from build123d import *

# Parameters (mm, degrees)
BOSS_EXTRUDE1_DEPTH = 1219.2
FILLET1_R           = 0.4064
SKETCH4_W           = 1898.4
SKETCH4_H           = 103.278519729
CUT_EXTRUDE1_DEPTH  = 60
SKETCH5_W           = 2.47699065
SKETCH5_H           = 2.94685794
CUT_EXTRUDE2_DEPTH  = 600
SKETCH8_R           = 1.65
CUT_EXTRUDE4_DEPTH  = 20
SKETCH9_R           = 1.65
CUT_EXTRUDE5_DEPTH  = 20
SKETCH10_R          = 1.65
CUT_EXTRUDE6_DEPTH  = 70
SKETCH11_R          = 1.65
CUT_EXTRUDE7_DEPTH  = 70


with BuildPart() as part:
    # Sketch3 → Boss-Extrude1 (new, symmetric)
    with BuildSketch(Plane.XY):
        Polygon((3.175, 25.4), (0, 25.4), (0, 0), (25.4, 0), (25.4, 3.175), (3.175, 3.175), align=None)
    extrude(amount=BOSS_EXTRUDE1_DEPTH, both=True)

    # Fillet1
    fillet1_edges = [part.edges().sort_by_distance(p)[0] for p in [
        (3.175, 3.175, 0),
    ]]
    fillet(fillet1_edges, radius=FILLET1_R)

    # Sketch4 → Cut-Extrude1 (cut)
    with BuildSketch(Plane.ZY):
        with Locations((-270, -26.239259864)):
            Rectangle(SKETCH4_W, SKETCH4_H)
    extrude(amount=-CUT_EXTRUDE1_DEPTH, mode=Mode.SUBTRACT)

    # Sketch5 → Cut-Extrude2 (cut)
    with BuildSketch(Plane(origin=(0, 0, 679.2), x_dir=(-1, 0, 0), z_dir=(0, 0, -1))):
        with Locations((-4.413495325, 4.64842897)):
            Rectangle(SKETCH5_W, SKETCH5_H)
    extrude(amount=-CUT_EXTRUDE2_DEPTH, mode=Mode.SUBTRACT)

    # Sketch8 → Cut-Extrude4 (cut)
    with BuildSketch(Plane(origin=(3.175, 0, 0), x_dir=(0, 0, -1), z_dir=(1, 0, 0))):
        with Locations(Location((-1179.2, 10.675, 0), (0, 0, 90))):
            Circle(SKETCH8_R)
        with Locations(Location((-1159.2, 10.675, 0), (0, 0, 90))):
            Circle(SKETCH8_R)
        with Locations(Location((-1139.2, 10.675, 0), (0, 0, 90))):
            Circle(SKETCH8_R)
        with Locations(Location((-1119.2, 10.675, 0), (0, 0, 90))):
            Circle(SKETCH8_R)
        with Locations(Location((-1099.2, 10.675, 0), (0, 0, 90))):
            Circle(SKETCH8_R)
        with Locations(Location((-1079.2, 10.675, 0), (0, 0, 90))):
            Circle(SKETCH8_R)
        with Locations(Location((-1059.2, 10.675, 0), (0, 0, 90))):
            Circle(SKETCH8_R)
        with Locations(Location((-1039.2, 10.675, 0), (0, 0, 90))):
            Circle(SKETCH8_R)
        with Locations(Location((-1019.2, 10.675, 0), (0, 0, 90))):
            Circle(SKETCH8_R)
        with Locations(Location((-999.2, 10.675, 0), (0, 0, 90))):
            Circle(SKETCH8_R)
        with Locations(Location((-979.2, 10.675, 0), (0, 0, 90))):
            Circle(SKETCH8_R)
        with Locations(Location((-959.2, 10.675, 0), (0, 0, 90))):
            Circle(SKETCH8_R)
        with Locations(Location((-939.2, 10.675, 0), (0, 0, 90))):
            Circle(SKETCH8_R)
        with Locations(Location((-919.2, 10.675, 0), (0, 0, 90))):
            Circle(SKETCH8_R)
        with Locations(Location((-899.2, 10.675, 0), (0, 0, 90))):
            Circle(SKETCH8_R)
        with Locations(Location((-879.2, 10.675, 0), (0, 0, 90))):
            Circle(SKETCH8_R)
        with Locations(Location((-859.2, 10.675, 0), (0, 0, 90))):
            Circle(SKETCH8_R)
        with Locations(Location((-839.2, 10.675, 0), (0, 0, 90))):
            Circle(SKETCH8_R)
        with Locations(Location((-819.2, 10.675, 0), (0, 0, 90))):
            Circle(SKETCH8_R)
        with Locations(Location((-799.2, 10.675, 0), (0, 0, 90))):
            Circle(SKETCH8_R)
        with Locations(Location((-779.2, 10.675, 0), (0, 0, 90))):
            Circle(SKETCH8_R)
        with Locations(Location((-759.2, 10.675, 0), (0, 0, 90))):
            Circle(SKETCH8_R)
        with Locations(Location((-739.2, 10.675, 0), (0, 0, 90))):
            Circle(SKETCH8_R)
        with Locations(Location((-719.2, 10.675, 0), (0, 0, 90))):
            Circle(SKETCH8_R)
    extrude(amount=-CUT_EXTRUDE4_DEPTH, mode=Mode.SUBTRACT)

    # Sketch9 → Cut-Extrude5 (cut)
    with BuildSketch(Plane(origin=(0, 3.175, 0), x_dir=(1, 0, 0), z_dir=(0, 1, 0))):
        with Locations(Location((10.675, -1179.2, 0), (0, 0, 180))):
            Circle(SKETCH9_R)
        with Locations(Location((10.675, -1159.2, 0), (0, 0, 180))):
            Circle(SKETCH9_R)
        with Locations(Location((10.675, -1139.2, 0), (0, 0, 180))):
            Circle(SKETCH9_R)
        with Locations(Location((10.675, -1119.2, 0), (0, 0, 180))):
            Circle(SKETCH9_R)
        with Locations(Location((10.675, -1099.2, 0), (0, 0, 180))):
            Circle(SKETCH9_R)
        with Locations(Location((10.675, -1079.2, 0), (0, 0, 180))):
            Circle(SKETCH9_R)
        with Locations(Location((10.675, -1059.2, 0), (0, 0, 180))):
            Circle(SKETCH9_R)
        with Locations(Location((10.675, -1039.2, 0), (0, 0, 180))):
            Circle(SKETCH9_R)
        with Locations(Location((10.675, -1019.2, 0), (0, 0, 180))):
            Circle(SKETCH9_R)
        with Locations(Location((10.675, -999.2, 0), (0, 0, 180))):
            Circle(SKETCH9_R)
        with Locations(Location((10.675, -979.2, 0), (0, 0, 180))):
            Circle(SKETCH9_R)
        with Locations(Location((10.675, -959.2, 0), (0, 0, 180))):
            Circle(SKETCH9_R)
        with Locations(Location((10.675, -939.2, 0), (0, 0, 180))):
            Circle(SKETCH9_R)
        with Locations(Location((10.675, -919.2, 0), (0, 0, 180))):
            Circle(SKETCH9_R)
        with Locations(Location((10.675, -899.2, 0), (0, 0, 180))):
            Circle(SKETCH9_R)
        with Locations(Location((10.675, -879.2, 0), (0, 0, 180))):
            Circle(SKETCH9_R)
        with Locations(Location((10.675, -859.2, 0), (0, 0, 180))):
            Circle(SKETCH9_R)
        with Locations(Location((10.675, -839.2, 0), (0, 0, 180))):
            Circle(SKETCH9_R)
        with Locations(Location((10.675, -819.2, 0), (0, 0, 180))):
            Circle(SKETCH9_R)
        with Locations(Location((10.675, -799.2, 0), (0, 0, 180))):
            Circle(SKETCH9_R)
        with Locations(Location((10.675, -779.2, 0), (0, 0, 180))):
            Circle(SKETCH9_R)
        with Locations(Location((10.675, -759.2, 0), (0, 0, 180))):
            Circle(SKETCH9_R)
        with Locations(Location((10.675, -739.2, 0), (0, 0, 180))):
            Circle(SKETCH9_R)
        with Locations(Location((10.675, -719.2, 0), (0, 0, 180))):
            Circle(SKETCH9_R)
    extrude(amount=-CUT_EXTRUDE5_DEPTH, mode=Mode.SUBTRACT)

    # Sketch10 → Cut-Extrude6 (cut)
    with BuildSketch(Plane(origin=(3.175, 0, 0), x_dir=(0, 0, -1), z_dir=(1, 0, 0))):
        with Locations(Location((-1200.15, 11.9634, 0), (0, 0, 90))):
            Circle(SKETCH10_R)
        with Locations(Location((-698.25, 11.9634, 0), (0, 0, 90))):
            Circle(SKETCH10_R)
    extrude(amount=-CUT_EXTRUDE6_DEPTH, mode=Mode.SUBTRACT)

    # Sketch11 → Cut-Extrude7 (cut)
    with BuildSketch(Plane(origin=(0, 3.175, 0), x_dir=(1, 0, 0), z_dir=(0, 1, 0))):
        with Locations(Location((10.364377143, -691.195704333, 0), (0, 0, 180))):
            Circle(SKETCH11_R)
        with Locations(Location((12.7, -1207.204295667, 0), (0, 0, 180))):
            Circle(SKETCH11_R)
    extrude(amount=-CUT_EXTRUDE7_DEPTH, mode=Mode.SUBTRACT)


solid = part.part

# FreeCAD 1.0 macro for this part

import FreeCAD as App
import Part
import Sketcher

V = App.Vector
Q = App.Units.Quantity


def edges_at(feature, points):
    """Names of the edges that pass closest to the given points."""
    edges = feature.Shape.Edges
    near = lambda p: min(range(len(edges)), key=lambda i: edges[i].distToShape(Part.Vertex(*p))[0])
    return sorted({f"Edge{near(p) + 1}" for p in points})

doc = App.newDocument("Part")
body = doc.addObject("PartDesign::Body", "Body")

# Sketch on XY plane
sketch1 = body.newObject("Sketcher::SketchObject", "Sketch")
sketch1.AttachmentSupport = (doc.getObject("XY_Plane"), [""])
sketch1.MapMode = "FlatFace"
sketch1.addGeometry([
    Part.LineSegment(V(3.2, 25.4, 0), V(0, 25.4, 0)),  # 0
    Part.LineSegment(V(0, 25.4, 0), V(0, 0, 0)),  # 1
    Part.LineSegment(V(0, 0, 0), V(25.4, 0, 0)),  # 2
    Part.LineSegment(V(25.4, 0, 0), V(25.4, 3.2, 0)),  # 3
    Part.LineSegment(V(25.4, 3.2, 0), V(3.2, 3.2, 0)),  # 4
    Part.LineSegment(V(3.2, 3.2, 0), V(3.2, 25.4, 0)),  # 5
], False)
sketch1.addConstraint([
    Sketcher.Constraint("Coincident", 0, 2, 1, 1),
    Sketcher.Constraint("Coincident", 1, 2, 2, 1),
    Sketcher.Constraint("Coincident", 2, 2, 3, 1),
    Sketcher.Constraint("Coincident", 3, 2, 4, 1),
    Sketcher.Constraint("Coincident", 4, 2, 5, 1),
    Sketcher.Constraint("Coincident", 5, 2, 0, 1),
    Sketcher.Constraint("Horizontal", 0),
    Sketcher.Constraint("Vertical", 1),
    Sketcher.Constraint("Horizontal", 2),
    Sketcher.Constraint("Vertical", 3),
    Sketcher.Constraint("Horizontal", 4),
    Sketcher.Constraint("Vertical", 5),
    Sketcher.Constraint("Coincident", 1, 2, -1, 1),
    Sketcher.Constraint("Equal", 2, 1),
    Sketcher.Constraint("Equal", 0, 3),
    Sketcher.Constraint("DistanceX", 2, 1, 2, 2, Q("25.4 mm")),
    Sketcher.Constraint("DistanceX", 0, 2, 0, 1, Q("3.175 mm")),
])
pad1 = body.newObject("PartDesign::Pad", "Pad")
pad1.Profile = sketch1
pad1.Length = 2438.4
pad1.Midplane = True
doc.recompute()

fillet = body.newObject("PartDesign::Fillet", "Fillet")
fillet.Base = (pad1, edges_at(pad1, [(3.175, 3.175, 0)]))
fillet.Radius = 0.4064

# Sketch on YZ plane
sketch2 = body.newObject("Sketcher::SketchObject", "Sketch001")
sketch2.AttachmentSupport = (doc.getObject("YZ_Plane"), [""])
sketch2.MapMode = "FlatFace"
sketch2.addGeometry([
    Part.LineSegment(V(25, -1219, 0), V(-78, -1219, 0)),
    Part.LineSegment(V(-78, -1219, 0), V(-78, 679, 0)),
    Part.LineSegment(V(-78, 679, 0), V(25, 679, 0)),
    Part.LineSegment(V(25, 679, 0), V(25, -1219, 0)),
], False)
sketch2.addConstraint([
    Sketcher.Constraint("Coincident", 0, 2, 1, 1),
    Sketcher.Constraint("Coincident", 1, 2, 2, 1),
    Sketcher.Constraint("Coincident", 2, 2, 3, 1),
    Sketcher.Constraint("Coincident", 3, 2, 0, 1),
    Sketcher.Constraint("Horizontal", 0),
    Sketcher.Constraint("Vertical", 1),
    Sketcher.Constraint("Horizontal", 2),
    Sketcher.Constraint("Vertical", 3),
    Sketcher.Constraint("DistanceY", 1, 1, 1, 2, Q("1898.4 mm")),
    Sketcher.Constraint("DistanceY", 0, 2, -1, 1, Q("1219.2 mm")),
    Sketcher.Constraint("DistanceX", -1, 1, 2, 2, Q("25.4 mm")),
    Sketcher.Constraint("DistanceX", 0, 2, 0, 1, Q("103.27852 mm")),
])
pocket1 = body.newObject("PartDesign::Pocket", "Pocket")
pocket1.Profile = sketch2
pocket1.Length = 60
pocket1.Reversed = True

# Sketch on XY plane
sketch3 = body.newObject("Sketcher::SketchObject", "Sketch002")
sketch3.AttachmentSupport = (doc.getObject("XY_Plane"), [""])
sketch3.MapMode = "FlatFace"
sketch3.AttachmentOffset = App.Placement(V(0, 0, 679.2), App.Rotation())
sketch3.addGeometry([
    Part.LineSegment(V(5.7, 6.1, 0), V(5.7, 3.2, 0)),
    Part.LineSegment(V(5.7, 3.2, 0), V(3.2, 3.2, 0)),
    Part.LineSegment(V(3.2, 3.2, 0), V(3.2, 6.1, 0)),
    Part.LineSegment(V(3.2, 6.1, 0), V(5.7, 6.1, 0)),
], False)
sketch3.addConstraint([
    Sketcher.Constraint("Coincident", 0, 2, 1, 1),
    Sketcher.Constraint("Coincident", 1, 2, 2, 1),
    Sketcher.Constraint("Coincident", 2, 2, 3, 1),
    Sketcher.Constraint("Coincident", 3, 2, 0, 1),
    Sketcher.Constraint("Vertical", 0),
    Sketcher.Constraint("Horizontal", 1),
    Sketcher.Constraint("Vertical", 2),
    Sketcher.Constraint("Horizontal", 3),
    Sketcher.Constraint("DistanceY", -1, 1, 0, 2, Q("3.175 mm")),
    Sketcher.Constraint("DistanceX", -1, 1, 1, 2, Q("3.175 mm")),
    Sketcher.Constraint("DistanceX", 1, 2, 1, 1, Q("2.476991 mm")),
    Sketcher.Constraint("DistanceY", 0, 2, 0, 1, Q("2.946858 mm")),
])
pocket2 = body.newObject("PartDesign::Pocket", "Pocket001")
pocket2.Profile = sketch3
pocket2.Length = 600
pocket2.Reversed = True

# Sketch on YZ plane
sketch4 = body.newObject("Sketcher::SketchObject", "Sketch003")
sketch4.AttachmentSupport = (doc.getObject("YZ_Plane"), [""])
sketch4.MapMode = "FlatFace"
sketch4.AttachmentOffset = App.Placement(V(0, 0, 3.175), App.Rotation())
sketch4.addGeometry([
    Part.Circle(V(10.7, 1179.2, 0), V(0, 0, 1), 1.6),  # 0
    Part.Circle(V(10.7, 1159.2, 0), V(0, 0, 1), 1.6),  # 1
    Part.Circle(V(10.7, 1139.2, 0), V(0, 0, 1), 1.6),  # 2
    Part.Circle(V(10.7, 1119.2, 0), V(0, 0, 1), 1.6),  # 3
    Part.Circle(V(10.7, 1099.2, 0), V(0, 0, 1), 1.6),  # 4
    Part.Circle(V(10.7, 1079.2, 0), V(0, 0, 1), 1.6),  # 5
    Part.Circle(V(10.7, 1059.2, 0), V(0, 0, 1), 1.6),  # 6
    Part.Circle(V(10.7, 1039.2, 0), V(0, 0, 1), 1.6),  # 7
    Part.Circle(V(10.7, 1019.2, 0), V(0, 0, 1), 1.6),  # 8
    Part.Circle(V(10.7, 999.2, 0), V(0, 0, 1), 1.6),  # 9
    Part.Circle(V(10.7, 979.2, 0), V(0, 0, 1), 1.6),  # 10
    Part.Circle(V(10.7, 959.2, 0), V(0, 0, 1), 1.6),  # 11
    Part.Circle(V(10.7, 939.2, 0), V(0, 0, 1), 1.6),  # 12
    Part.Circle(V(10.7, 919.2, 0), V(0, 0, 1), 1.6),  # 13
    Part.Circle(V(10.7, 899.2, 0), V(0, 0, 1), 1.6),  # 14
    Part.Circle(V(10.7, 879.2, 0), V(0, 0, 1), 1.6),  # 15
    Part.Circle(V(10.7, 859.2, 0), V(0, 0, 1), 1.6),  # 16
    Part.Circle(V(10.7, 839.2, 0), V(0, 0, 1), 1.6),  # 17
    Part.Circle(V(10.7, 819.2, 0), V(0, 0, 1), 1.6),  # 18
    Part.Circle(V(10.7, 799.2, 0), V(0, 0, 1), 1.6),  # 19
    Part.Circle(V(10.7, 779.2, 0), V(0, 0, 1), 1.6),  # 20
    Part.Circle(V(10.7, 759.2, 0), V(0, 0, 1), 1.6),  # 21
    Part.Circle(V(10.7, 739.2, 0), V(0, 0, 1), 1.6),  # 22
    Part.Circle(V(10.7, 719.2, 0), V(0, 0, 1), 1.6),  # 23
], False)
sketch4.addConstraint([
    Sketcher.Constraint("Equal", 0, 1),
    Sketcher.Constraint("Equal", 1, 2),
    Sketcher.Constraint("Equal", 2, 3),
    Sketcher.Constraint("Equal", 3, 4),
    Sketcher.Constraint("Equal", 4, 5),
    Sketcher.Constraint("Equal", 5, 6),
    Sketcher.Constraint("Equal", 6, 7),
    Sketcher.Constraint("Equal", 7, 8),
    Sketcher.Constraint("Equal", 8, 9),
    Sketcher.Constraint("Equal", 9, 10),
    Sketcher.Constraint("Equal", 10, 11),
    Sketcher.Constraint("Equal", 11, 12),
    Sketcher.Constraint("Equal", 12, 13),
    Sketcher.Constraint("Equal", 13, 14),
    Sketcher.Constraint("Equal", 14, 15),
    Sketcher.Constraint("Equal", 15, 16),
    Sketcher.Constraint("Equal", 16, 17),
    Sketcher.Constraint("Equal", 17, 18),
    Sketcher.Constraint("Equal", 18, 19),
    Sketcher.Constraint("Equal", 19, 20),
    Sketcher.Constraint("Equal", 20, 21),
    Sketcher.Constraint("Equal", 21, 22),
    Sketcher.Constraint("Equal", 22, 23),
    Sketcher.Constraint("Vertical", 0, 3, 1, 3),
    Sketcher.Constraint("Vertical", 1, 3, 2, 3),
    Sketcher.Constraint("Vertical", 2, 3, 3, 3),
    Sketcher.Constraint("Vertical", 3, 3, 4, 3),
    Sketcher.Constraint("Vertical", 4, 3, 5, 3),
    Sketcher.Constraint("Vertical", 5, 3, 6, 3),
    Sketcher.Constraint("Vertical", 6, 3, 7, 3),
    Sketcher.Constraint("Vertical", 7, 3, 8, 3),
    Sketcher.Constraint("Vertical", 8, 3, 9, 3),
    Sketcher.Constraint("Vertical", 9, 3, 10, 3),
    Sketcher.Constraint("Vertical", 10, 3, 11, 3),
    Sketcher.Constraint("Vertical", 11, 3, 12, 3),
    Sketcher.Constraint("Vertical", 12, 3, 13, 3),
    Sketcher.Constraint("Vertical", 13, 3, 14, 3),
    Sketcher.Constraint("Vertical", 14, 3, 15, 3),
    Sketcher.Constraint("Vertical", 15, 3, 16, 3),
    Sketcher.Constraint("Vertical", 16, 3, 17, 3),
    Sketcher.Constraint("Vertical", 17, 3, 18, 3),
    Sketcher.Constraint("Vertical", 18, 3, 19, 3),
    Sketcher.Constraint("Vertical", 19, 3, 20, 3),
    Sketcher.Constraint("Vertical", 20, 3, 21, 3),
    Sketcher.Constraint("Vertical", 21, 3, 22, 3),
    Sketcher.Constraint("Vertical", 22, 3, 23, 3),
    Sketcher.Constraint("Diameter", 0, Q("3.3 mm")),
    Sketcher.Constraint("DistanceY", 1, 3, 0, 3, Q("20 mm")),
    Sketcher.Constraint("DistanceY", 2, 3, 1, 3, Q("20 mm")),
    Sketcher.Constraint("DistanceY", 3, 3, 2, 3, Q("20 mm")),
    Sketcher.Constraint("DistanceY", 4, 3, 3, 3, Q("20 mm")),
    Sketcher.Constraint("DistanceY", 5, 3, 4, 3, Q("20 mm")),
    Sketcher.Constraint("DistanceY", 6, 3, 5, 3, Q("20 mm")),
    Sketcher.Constraint("DistanceY", 7, 3, 6, 3, Q("20 mm")),
    Sketcher.Constraint("DistanceY", 8, 3, 7, 3, Q("20 mm")),
    Sketcher.Constraint("DistanceY", 9, 3, 8, 3, Q("20 mm")),
    Sketcher.Constraint("DistanceY", 10, 3, 9, 3, Q("20 mm")),
    Sketcher.Constraint("DistanceY", 11, 3, 10, 3, Q("20 mm")),
    Sketcher.Constraint("DistanceY", 12, 3, 11, 3, Q("20 mm")),
    Sketcher.Constraint("DistanceY", 13, 3, 12, 3, Q("20 mm")),
    Sketcher.Constraint("DistanceY", 14, 3, 13, 3, Q("20 mm")),
    Sketcher.Constraint("DistanceY", 15, 3, 14, 3, Q("20 mm")),
    Sketcher.Constraint("DistanceY", 16, 3, 15, 3, Q("20 mm")),
    Sketcher.Constraint("DistanceY", 17, 3, 16, 3, Q("20 mm")),
    Sketcher.Constraint("DistanceY", 18, 3, 17, 3, Q("20 mm")),
    Sketcher.Constraint("DistanceY", 19, 3, 18, 3, Q("20 mm")),
    Sketcher.Constraint("DistanceY", 20, 3, 19, 3, Q("20 mm")),
    Sketcher.Constraint("DistanceY", 21, 3, 20, 3, Q("20 mm")),
    Sketcher.Constraint("DistanceY", 22, 3, 21, 3, Q("20 mm")),
    Sketcher.Constraint("DistanceY", 23, 3, 22, 3, Q("20 mm")),
    Sketcher.Constraint("DistanceY", -1, 1, 0, 3, Q("1179.2 mm")),
    Sketcher.Constraint("DistanceX", -1, 1, 0, 3, Q("10.675 mm")),
])
pocket3 = body.newObject("PartDesign::Pocket", "Pocket002")
pocket3.Profile = sketch4
pocket3.Length = 20

# Sketch on XZ plane
sketch5 = body.newObject("Sketcher::SketchObject", "Sketch004")
sketch5.AttachmentSupport = (doc.getObject("XZ_Plane"), [""])
sketch5.MapMode = "FlatFace"
sketch5.AttachmentOffset = App.Placement(V(0, 0, -3.175), App.Rotation())
sketch5.addGeometry([
    Part.Circle(V(10.7, 1179.2, 0), V(0, 0, 1), 1.6),  # 0
    Part.Circle(V(10.7, 1159.2, 0), V(0, 0, 1), 1.6),  # 1
    Part.Circle(V(10.7, 1139.2, 0), V(0, 0, 1), 1.6),  # 2
    Part.Circle(V(10.7, 1119.2, 0), V(0, 0, 1), 1.6),  # 3
    Part.Circle(V(10.7, 1099.2, 0), V(0, 0, 1), 1.6),  # 4
    Part.Circle(V(10.7, 1079.2, 0), V(0, 0, 1), 1.6),  # 5
    Part.Circle(V(10.7, 1059.2, 0), V(0, 0, 1), 1.6),  # 6
    Part.Circle(V(10.7, 1039.2, 0), V(0, 0, 1), 1.6),  # 7
    Part.Circle(V(10.7, 1019.2, 0), V(0, 0, 1), 1.6),  # 8
    Part.Circle(V(10.7, 999.2, 0), V(0, 0, 1), 1.6),  # 9
    Part.Circle(V(10.7, 979.2, 0), V(0, 0, 1), 1.6),  # 10
    Part.Circle(V(10.7, 959.2, 0), V(0, 0, 1), 1.6),  # 11
    Part.Circle(V(10.7, 939.2, 0), V(0, 0, 1), 1.6),  # 12
    Part.Circle(V(10.7, 919.2, 0), V(0, 0, 1), 1.6),  # 13
    Part.Circle(V(10.7, 899.2, 0), V(0, 0, 1), 1.6),  # 14
    Part.Circle(V(10.7, 879.2, 0), V(0, 0, 1), 1.6),  # 15
    Part.Circle(V(10.7, 859.2, 0), V(0, 0, 1), 1.6),  # 16
    Part.Circle(V(10.7, 839.2, 0), V(0, 0, 1), 1.6),  # 17
    Part.Circle(V(10.7, 819.2, 0), V(0, 0, 1), 1.6),  # 18
    Part.Circle(V(10.7, 799.2, 0), V(0, 0, 1), 1.6),  # 19
    Part.Circle(V(10.7, 779.2, 0), V(0, 0, 1), 1.6),  # 20
    Part.Circle(V(10.7, 759.2, 0), V(0, 0, 1), 1.6),  # 21
    Part.Circle(V(10.7, 739.2, 0), V(0, 0, 1), 1.6),  # 22
    Part.Circle(V(10.7, 719.2, 0), V(0, 0, 1), 1.6),  # 23
], False)
sketch5.addConstraint([
    Sketcher.Constraint("Equal", 0, 1),
    Sketcher.Constraint("Equal", 1, 2),
    Sketcher.Constraint("Equal", 2, 3),
    Sketcher.Constraint("Equal", 3, 4),
    Sketcher.Constraint("Equal", 4, 5),
    Sketcher.Constraint("Equal", 5, 6),
    Sketcher.Constraint("Equal", 6, 7),
    Sketcher.Constraint("Equal", 7, 8),
    Sketcher.Constraint("Equal", 8, 9),
    Sketcher.Constraint("Equal", 9, 10),
    Sketcher.Constraint("Equal", 10, 11),
    Sketcher.Constraint("Equal", 11, 12),
    Sketcher.Constraint("Equal", 12, 13),
    Sketcher.Constraint("Equal", 13, 14),
    Sketcher.Constraint("Equal", 14, 15),
    Sketcher.Constraint("Equal", 15, 16),
    Sketcher.Constraint("Equal", 16, 17),
    Sketcher.Constraint("Equal", 17, 18),
    Sketcher.Constraint("Equal", 18, 19),
    Sketcher.Constraint("Equal", 19, 20),
    Sketcher.Constraint("Equal", 20, 21),
    Sketcher.Constraint("Equal", 21, 22),
    Sketcher.Constraint("Equal", 22, 23),
    Sketcher.Constraint("Vertical", 0, 3, 1, 3),
    Sketcher.Constraint("Vertical", 1, 3, 2, 3),
    Sketcher.Constraint("Vertical", 2, 3, 3, 3),
    Sketcher.Constraint("Vertical", 3, 3, 4, 3),
    Sketcher.Constraint("Vertical", 4, 3, 5, 3),
    Sketcher.Constraint("Vertical", 5, 3, 6, 3),
    Sketcher.Constraint("Vertical", 6, 3, 7, 3),
    Sketcher.Constraint("Vertical", 7, 3, 8, 3),
    Sketcher.Constraint("Vertical", 8, 3, 9, 3),
    Sketcher.Constraint("Vertical", 9, 3, 10, 3),
    Sketcher.Constraint("Vertical", 10, 3, 11, 3),
    Sketcher.Constraint("Vertical", 11, 3, 12, 3),
    Sketcher.Constraint("Vertical", 12, 3, 13, 3),
    Sketcher.Constraint("Vertical", 13, 3, 14, 3),
    Sketcher.Constraint("Vertical", 14, 3, 15, 3),
    Sketcher.Constraint("Vertical", 15, 3, 16, 3),
    Sketcher.Constraint("Vertical", 16, 3, 17, 3),
    Sketcher.Constraint("Vertical", 17, 3, 18, 3),
    Sketcher.Constraint("Vertical", 18, 3, 19, 3),
    Sketcher.Constraint("Vertical", 19, 3, 20, 3),
    Sketcher.Constraint("Vertical", 20, 3, 21, 3),
    Sketcher.Constraint("Vertical", 21, 3, 22, 3),
    Sketcher.Constraint("Vertical", 22, 3, 23, 3),
    Sketcher.Constraint("Diameter", 0, Q("3.3 mm")),
    Sketcher.Constraint("DistanceY", 1, 3, 0, 3, Q("20 mm")),
    Sketcher.Constraint("DistanceY", 2, 3, 1, 3, Q("20 mm")),
    Sketcher.Constraint("DistanceY", 3, 3, 2, 3, Q("20 mm")),
    Sketcher.Constraint("DistanceY", 4, 3, 3, 3, Q("20 mm")),
    Sketcher.Constraint("DistanceY", 5, 3, 4, 3, Q("20 mm")),
    Sketcher.Constraint("DistanceY", 6, 3, 5, 3, Q("20 mm")),
    Sketcher.Constraint("DistanceY", 7, 3, 6, 3, Q("20 mm")),
    Sketcher.Constraint("DistanceY", 8, 3, 7, 3, Q("20 mm")),
    Sketcher.Constraint("DistanceY", 9, 3, 8, 3, Q("20 mm")),
    Sketcher.Constraint("DistanceY", 10, 3, 9, 3, Q("20 mm")),
    Sketcher.Constraint("DistanceY", 11, 3, 10, 3, Q("20 mm")),
    Sketcher.Constraint("DistanceY", 12, 3, 11, 3, Q("20 mm")),
    Sketcher.Constraint("DistanceY", 13, 3, 12, 3, Q("20 mm")),
    Sketcher.Constraint("DistanceY", 14, 3, 13, 3, Q("20 mm")),
    Sketcher.Constraint("DistanceY", 15, 3, 14, 3, Q("20 mm")),
    Sketcher.Constraint("DistanceY", 16, 3, 15, 3, Q("20 mm")),
    Sketcher.Constraint("DistanceY", 17, 3, 16, 3, Q("20 mm")),
    Sketcher.Constraint("DistanceY", 18, 3, 17, 3, Q("20 mm")),
    Sketcher.Constraint("DistanceY", 19, 3, 18, 3, Q("20 mm")),
    Sketcher.Constraint("DistanceY", 20, 3, 19, 3, Q("20 mm")),
    Sketcher.Constraint("DistanceY", 21, 3, 20, 3, Q("20 mm")),
    Sketcher.Constraint("DistanceY", 22, 3, 21, 3, Q("20 mm")),
    Sketcher.Constraint("DistanceY", 23, 3, 22, 3, Q("20 mm")),
    Sketcher.Constraint("DistanceY", -1, 1, 0, 3, Q("1179.2 mm")),
    Sketcher.Constraint("DistanceX", -1, 1, 0, 3, Q("10.675 mm")),
])
pocket4 = body.newObject("PartDesign::Pocket", "Pocket003")
pocket4.Profile = sketch5
pocket4.Length = 20
pocket4.Reversed = True

# Sketch on YZ plane
sketch6 = body.newObject("Sketcher::SketchObject", "Sketch005")
sketch6.AttachmentSupport = (doc.getObject("YZ_Plane"), [""])
sketch6.MapMode = "FlatFace"
sketch6.AttachmentOffset = App.Placement(V(0, 0, 3.175), App.Rotation())
sketch6.addGeometry([
    Part.Circle(V(12, 1200.2, 0), V(0, 0, 1), 1.6),
    Part.Circle(V(12, 698.2, 0), V(0, 0, 1), 1.6),
], False)
sketch6.addConstraint([
    Sketcher.Constraint("Equal", 0, 1),
    Sketcher.Constraint("Vertical", 0, 3, 1, 3),
    Sketcher.Constraint("Diameter", 0, Q("3.3 mm")),
    Sketcher.Constraint("DistanceY", 1, 3, 0, 3, Q("501.9 mm")),
    Sketcher.Constraint("DistanceY", -1, 1, 0, 3, Q("1200.15 mm")),
    Sketcher.Constraint("DistanceX", -1, 1, 0, 3, Q("11.9634 mm")),
])
pocket5 = body.newObject("PartDesign::Pocket", "Pocket004")
pocket5.Profile = sketch6
pocket5.Length = 70

# Sketch on XZ plane
sketch7 = body.newObject("Sketcher::SketchObject", "Sketch006")
sketch7.AttachmentSupport = (doc.getObject("XZ_Plane"), [""])
sketch7.MapMode = "FlatFace"
sketch7.AttachmentOffset = App.Placement(V(0, 0, -3.175), App.Rotation())
sketch7.addGeometry([
    Part.Circle(V(10.4, 691.2, 0), V(0, 0, 1), 1.6),
    Part.Circle(V(12.7, 1207.2, 0), V(0, 0, 1), 1.6),
], False)
sketch7.addConstraint([
    Sketcher.Constraint("Equal", 0, 1),
    Sketcher.Constraint("Diameter", 0, Q("3.3 mm")),
    Sketcher.Constraint("DistanceX", -1, 1, 1, 3, Q("12.7 mm")),
    Sketcher.Constraint("DistanceY", 0, 3, 1, 3, Q("516.008591 mm")),
    Sketcher.Constraint("DistanceX", -1, 1, 0, 3, Q("10.364377 mm")),
    Sketcher.Constraint("DistanceY", -1, 1, 0, 3, Q("691.195704 mm")),
])
pocket6 = body.newObject("PartDesign::Pocket", "Pocket005")
pocket6.Profile = sketch7
pocket6.Length = 70
pocket6.Reversed = True

doc.recompute()
